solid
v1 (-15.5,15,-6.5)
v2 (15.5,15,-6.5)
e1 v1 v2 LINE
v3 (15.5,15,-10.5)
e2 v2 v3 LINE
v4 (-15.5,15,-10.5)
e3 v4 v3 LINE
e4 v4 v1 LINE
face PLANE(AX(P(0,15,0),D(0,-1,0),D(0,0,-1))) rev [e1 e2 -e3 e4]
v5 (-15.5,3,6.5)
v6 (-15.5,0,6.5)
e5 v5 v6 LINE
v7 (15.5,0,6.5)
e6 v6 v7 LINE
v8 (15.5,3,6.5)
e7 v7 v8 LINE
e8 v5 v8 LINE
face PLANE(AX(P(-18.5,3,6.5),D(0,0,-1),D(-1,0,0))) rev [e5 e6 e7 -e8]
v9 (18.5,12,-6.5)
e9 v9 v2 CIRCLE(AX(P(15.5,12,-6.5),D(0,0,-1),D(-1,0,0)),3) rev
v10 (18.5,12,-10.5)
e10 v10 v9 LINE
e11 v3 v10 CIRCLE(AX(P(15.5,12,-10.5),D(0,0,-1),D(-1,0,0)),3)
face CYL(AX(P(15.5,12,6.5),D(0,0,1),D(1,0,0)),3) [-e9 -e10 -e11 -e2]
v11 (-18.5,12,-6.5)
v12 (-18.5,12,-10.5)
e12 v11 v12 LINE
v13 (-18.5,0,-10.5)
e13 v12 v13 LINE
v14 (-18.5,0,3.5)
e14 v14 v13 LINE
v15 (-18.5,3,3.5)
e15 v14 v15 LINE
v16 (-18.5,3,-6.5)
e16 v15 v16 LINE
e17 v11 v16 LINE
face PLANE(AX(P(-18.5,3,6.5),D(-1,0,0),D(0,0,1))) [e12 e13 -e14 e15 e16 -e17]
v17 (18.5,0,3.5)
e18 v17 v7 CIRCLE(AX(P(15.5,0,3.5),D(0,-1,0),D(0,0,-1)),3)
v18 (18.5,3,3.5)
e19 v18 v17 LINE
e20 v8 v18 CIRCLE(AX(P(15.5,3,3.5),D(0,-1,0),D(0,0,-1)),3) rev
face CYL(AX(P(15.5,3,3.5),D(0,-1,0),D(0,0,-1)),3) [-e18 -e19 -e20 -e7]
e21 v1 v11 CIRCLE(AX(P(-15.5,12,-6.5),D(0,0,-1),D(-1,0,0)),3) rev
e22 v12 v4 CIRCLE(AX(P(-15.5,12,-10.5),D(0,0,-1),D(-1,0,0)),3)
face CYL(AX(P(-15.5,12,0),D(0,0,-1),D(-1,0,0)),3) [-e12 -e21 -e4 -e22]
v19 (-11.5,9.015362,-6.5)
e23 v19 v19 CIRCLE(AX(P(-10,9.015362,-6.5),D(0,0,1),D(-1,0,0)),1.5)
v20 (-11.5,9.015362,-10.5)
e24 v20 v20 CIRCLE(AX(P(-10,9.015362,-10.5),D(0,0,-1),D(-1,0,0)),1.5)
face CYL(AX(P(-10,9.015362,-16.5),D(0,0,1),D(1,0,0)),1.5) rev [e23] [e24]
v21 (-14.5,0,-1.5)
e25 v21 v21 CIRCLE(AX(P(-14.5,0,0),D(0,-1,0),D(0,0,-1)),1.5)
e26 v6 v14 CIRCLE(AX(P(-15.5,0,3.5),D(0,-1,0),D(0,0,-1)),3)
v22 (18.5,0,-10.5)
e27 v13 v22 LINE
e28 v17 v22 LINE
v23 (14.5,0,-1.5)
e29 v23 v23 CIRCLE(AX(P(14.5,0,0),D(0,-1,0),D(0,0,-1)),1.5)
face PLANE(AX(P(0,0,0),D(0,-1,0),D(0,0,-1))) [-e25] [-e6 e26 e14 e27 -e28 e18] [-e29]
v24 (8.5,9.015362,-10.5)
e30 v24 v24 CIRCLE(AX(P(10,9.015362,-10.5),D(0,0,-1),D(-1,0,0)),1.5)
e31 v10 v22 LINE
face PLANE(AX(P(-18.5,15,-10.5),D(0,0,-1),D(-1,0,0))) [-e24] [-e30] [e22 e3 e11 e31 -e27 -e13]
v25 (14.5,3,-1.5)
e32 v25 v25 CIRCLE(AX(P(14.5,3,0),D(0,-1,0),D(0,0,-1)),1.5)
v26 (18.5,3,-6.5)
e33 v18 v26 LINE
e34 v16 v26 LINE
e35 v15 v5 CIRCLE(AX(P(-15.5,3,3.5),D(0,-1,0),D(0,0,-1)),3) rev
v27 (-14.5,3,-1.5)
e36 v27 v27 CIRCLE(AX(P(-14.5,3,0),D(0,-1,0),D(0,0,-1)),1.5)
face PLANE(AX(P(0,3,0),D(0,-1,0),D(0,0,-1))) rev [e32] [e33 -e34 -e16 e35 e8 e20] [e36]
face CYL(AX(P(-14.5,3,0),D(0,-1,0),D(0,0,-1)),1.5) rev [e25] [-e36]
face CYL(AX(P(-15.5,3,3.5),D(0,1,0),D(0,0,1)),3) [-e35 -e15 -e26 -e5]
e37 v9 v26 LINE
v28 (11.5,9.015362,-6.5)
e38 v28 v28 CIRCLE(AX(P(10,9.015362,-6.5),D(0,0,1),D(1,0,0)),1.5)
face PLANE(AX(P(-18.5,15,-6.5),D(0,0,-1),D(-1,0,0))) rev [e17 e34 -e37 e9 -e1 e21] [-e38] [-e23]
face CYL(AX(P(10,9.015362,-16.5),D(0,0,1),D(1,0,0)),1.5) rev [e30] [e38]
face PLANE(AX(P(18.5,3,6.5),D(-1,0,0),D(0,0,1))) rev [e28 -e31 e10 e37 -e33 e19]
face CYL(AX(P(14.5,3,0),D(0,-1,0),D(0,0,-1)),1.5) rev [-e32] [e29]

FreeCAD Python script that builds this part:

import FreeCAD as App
import Part
import Sketcher
Q = App.Units.Quantity


def edges_at(feature, points):
    """Names of the edges that pass closest to the given points."""
    edges = feature.Shape.Edges
    near = lambda p: min(range(len(edges)), key=lambda i: edges[i].distToShape(Part.Vertex(*p))[0])
    return sorted({f"Edge{near(p) + 1}" for p in points})

doc = App.newDocument("Part")
params = doc.addObject("Spreadsheet::Sheet", "Params")
for row, (alias, value) in enumerate([
    ("sketch1_width", "37 mm"),
    ("sketch1_height", "13 mm"),
    ("pad1_length", "3 mm"),
    ("sketch2_diameter", "3 mm"),
    ("pocket1_length", "3 mm"),
    ("sketch3_width", "37 mm"),
    ("sketch3_height", "4 mm"),
    ("pad2_length", "15 mm"),
    ("fillet_radius", "3 mm"),
    ("fillet2_radius", "3 mm"),
    ("sketch4_diameter", "3 mm"),
    ("pocket2_length", "10 mm"),
    ("fillet3_radius", "3 mm"),
], start=1):
    params.set(f"A{row}", alias)
    params.set(f"B{row}", "=" + value)
    params.setAlias(f"B{row}", alias)

body = doc.addObject("PartDesign::Body", "Body")

# Sketch on XZ plane
sketch1 = body.newObject("Sketcher::SketchObject", "Sketch")
sketch1.AttachmentSupport = (doc.getObject("XZ_Plane"), [""])
sketch1.MapMode = "FlatFace"
sketch1.addGeometry([
    Part.LineSegment(App.Vector(-18, -6, 0), App.Vector(-18, 6, 0)),
    Part.LineSegment(App.Vector(-18, 6, 0), App.Vector(18, 6, 0)),
    Part.LineSegment(App.Vector(18, 6, 0), App.Vector(18, -6, 0)),
    Part.LineSegment(App.Vector(18, -6, 0), App.Vector(-18, -6, 0)),
], False)
sketch1.addConstraint([
    Sketcher.Constraint("Coincident", 0, 2, 1, 1),
    Sketcher.Constraint("Coincident", 1, 2, 2, 1),
    Sketcher.Constraint("Coincident", 2, 2, 3, 1),
    Sketcher.Constraint("Coincident", 3, 2, 0, 1),
    Sketcher.Constraint("Vertical", 0),
    Sketcher.Constraint("Horizontal", 1),
    Sketcher.Constraint("Vertical", 2),
    Sketcher.Constraint("Horizontal", 3),
    Sketcher.Constraint("Symmetric", 0, 2, 2, 2, -1, 1),
    Sketcher.Constraint("DistanceX", 1, 1, 1, 2, Q("37 mm")),
    Sketcher.Constraint("DistanceY", 0, 1, 0, 2, Q("13 mm")),
])
sketch1.setExpression("Constraints[9]", "Params.sketch1_width")
sketch1.setExpression("Constraints[10]", "Params.sketch1_height")
pad1 = body.newObject("PartDesign::Pad", "Pad")
pad1.Profile = sketch1
pad1.setExpression("Length", "Params.pad1_length")
pad1.Reversed = True

# Sketch on XZ plane
sketch2 = body.newObject("Sketcher::SketchObject", "Sketch001")
sketch2.AttachmentSupport = (doc.getObject("XZ_Plane"), [""])
sketch2.MapMode = "FlatFace"
sketch2.addGeometry([
    Part.Circle(App.Vector(-14.5, 0, 0), App.Vector(0, 0, 1), 1.5),
    Part.Circle(App.Vector(14.5, 0, 0), App.Vector(0, 0, 1), 1.5),
], False)
sketch2.addConstraint([
    Sketcher.Constraint("Equal", 0, 1),
    Sketcher.Constraint("Symmetric", 0, 3, 1, 3, -1, 1),
    Sketcher.Constraint("PointOnObject", 0, 3, -1),
    Sketcher.Constraint("Diameter", 0, Q("3 mm")),
    Sketcher.Constraint("DistanceX", 0, 3, 1, 3, Q("29 mm")),
])
sketch2.setExpression("Constraints[3]", "Params.sketch2_diameter")
pocket1 = body.newObject("PartDesign::Pocket", "Pocket")
pocket1.Profile = sketch2
pocket1.setExpression("Length", "Params.pocket1_length")

# Sketch on XZ plane
sketch3 = body.newObject("Sketcher::SketchObject", "Sketch002")
sketch3.AttachmentSupport = (doc.getObject("XZ_Plane"), [""])
sketch3.MapMode = "FlatFace"
sketch3.addGeometry([
    Part.LineSegment(App.Vector(-18.5, -6.5, 0), App.Vector(-18.5, -10.5, 0)),
    Part.LineSegment(App.Vector(-18.5, -10.5, 0), App.Vector(18.5, -10.5, 0)),
    Part.LineSegment(App.Vector(18.5, -10.5, 0), App.Vector(18.5, -6.5, 0)),
    Part.LineSegment(App.Vector(18.5, -6.5, 0), App.Vector(-18.5, -6.5, 0)),
], False)
sketch3.addConstraint([
    Sketcher.Constraint("Coincident", 0, 2, 1, 1),
    Sketcher.Constraint("Coincident", 1, 2, 2, 1),
    Sketcher.Constraint("Coincident", 2, 2, 3, 1),
    Sketcher.Constraint("Coincident", 3, 2, 0, 1),
    Sketcher.Constraint("Vertical", 0),
    Sketcher.Constraint("Horizontal", 1),
    Sketcher.Constraint("Vertical", 2),
    Sketcher.Constraint("Horizontal", 3),
    Sketcher.Constraint("DistanceX", 1, 1, 1, 2, Q("37 mm")),
    Sketcher.Constraint("DistanceY", 0, 2, 0, 1, Q("4 mm")),
    Sketcher.Constraint("DistanceX", 0, 2, -1, 1, Q("18.5 mm")),
    Sketcher.Constraint("DistanceY", 0, 2, -1, 1, Q("10.5 mm")),
])
sketch3.setExpression("Constraints[8]", "Params.sketch3_width")
sketch3.setExpression("Constraints[9]", "Params.sketch3_height")
pad2 = body.newObject("PartDesign::Pad", "Pad001")
pad2.Profile = sketch3
pad2.setExpression("Length", "Params.pad2_length")
pad2.Reversed = True
doc.recompute()

fillet = body.newObject("PartDesign::Fillet", "Fillet")
fillet.Base = (pad2, edges_at(pad2, [(18.5, 15, -8.5)]))
fillet.setExpression("Radius", "Params.fillet_radius")
doc.recompute()

fillet2 = body.newObject("PartDesign::Fillet", "Fillet001")
fillet2.Base = (fillet, edges_at(fillet, [(-18.5, 15, -8.5)]))
fillet2.setExpression("Radius", "Params.fillet2_radius")

# Sketch on XY plane
sketch4 = body.newObject("Sketcher::SketchObject", "Sketch003")
sketch4.AttachmentSupport = (doc.getObject("XY_Plane"), [""])
sketch4.MapMode = "FlatFace"
sketch4.AttachmentOffset = App.Placement(App.Vector(0, 0, -6.5), App.Rotation())
sketch4.addGeometry([
    Part.Circle(App.Vector(10, 9, 0), App.Vector(0, 0, 1), 1.5),
    Part.Circle(App.Vector(-10, 9, 0), App.Vector(0, 0, 1), 1.5),
], False)
sketch4.addConstraint([
    Sketcher.Constraint("Equal", 0, 1),
    Sketcher.Constraint("Symmetric", 0, 3, 1, 3, -2),
    Sketcher.Constraint("Diameter", 0, Q("3 mm")),
    Sketcher.Constraint("DistanceX", -1, 1, 0, 3, Q("10 mm")),
    Sketcher.Constraint("DistanceY", -1, 1, 0, 3, Q("9.015362 mm")),
])
sketch4.setExpression("Constraints[2]", "Params.sketch4_diameter")
pocket2 = body.newObject("PartDesign::Pocket", "Pocket001")
pocket2.Profile = sketch4
pocket2.setExpression("Length", "Params.pocket2_length")
doc.recompute()

fillet3 = body.newObject("PartDesign::Fillet", "Fillet002")
fillet3.Base = (pocket2, edges_at(pocket2, [(-18.5, 1.5, 6.5), (18.5, 1.5, 6.5)]))
fillet3.setExpression("Radius", "Params.fillet3_radius")

doc.recompute()
